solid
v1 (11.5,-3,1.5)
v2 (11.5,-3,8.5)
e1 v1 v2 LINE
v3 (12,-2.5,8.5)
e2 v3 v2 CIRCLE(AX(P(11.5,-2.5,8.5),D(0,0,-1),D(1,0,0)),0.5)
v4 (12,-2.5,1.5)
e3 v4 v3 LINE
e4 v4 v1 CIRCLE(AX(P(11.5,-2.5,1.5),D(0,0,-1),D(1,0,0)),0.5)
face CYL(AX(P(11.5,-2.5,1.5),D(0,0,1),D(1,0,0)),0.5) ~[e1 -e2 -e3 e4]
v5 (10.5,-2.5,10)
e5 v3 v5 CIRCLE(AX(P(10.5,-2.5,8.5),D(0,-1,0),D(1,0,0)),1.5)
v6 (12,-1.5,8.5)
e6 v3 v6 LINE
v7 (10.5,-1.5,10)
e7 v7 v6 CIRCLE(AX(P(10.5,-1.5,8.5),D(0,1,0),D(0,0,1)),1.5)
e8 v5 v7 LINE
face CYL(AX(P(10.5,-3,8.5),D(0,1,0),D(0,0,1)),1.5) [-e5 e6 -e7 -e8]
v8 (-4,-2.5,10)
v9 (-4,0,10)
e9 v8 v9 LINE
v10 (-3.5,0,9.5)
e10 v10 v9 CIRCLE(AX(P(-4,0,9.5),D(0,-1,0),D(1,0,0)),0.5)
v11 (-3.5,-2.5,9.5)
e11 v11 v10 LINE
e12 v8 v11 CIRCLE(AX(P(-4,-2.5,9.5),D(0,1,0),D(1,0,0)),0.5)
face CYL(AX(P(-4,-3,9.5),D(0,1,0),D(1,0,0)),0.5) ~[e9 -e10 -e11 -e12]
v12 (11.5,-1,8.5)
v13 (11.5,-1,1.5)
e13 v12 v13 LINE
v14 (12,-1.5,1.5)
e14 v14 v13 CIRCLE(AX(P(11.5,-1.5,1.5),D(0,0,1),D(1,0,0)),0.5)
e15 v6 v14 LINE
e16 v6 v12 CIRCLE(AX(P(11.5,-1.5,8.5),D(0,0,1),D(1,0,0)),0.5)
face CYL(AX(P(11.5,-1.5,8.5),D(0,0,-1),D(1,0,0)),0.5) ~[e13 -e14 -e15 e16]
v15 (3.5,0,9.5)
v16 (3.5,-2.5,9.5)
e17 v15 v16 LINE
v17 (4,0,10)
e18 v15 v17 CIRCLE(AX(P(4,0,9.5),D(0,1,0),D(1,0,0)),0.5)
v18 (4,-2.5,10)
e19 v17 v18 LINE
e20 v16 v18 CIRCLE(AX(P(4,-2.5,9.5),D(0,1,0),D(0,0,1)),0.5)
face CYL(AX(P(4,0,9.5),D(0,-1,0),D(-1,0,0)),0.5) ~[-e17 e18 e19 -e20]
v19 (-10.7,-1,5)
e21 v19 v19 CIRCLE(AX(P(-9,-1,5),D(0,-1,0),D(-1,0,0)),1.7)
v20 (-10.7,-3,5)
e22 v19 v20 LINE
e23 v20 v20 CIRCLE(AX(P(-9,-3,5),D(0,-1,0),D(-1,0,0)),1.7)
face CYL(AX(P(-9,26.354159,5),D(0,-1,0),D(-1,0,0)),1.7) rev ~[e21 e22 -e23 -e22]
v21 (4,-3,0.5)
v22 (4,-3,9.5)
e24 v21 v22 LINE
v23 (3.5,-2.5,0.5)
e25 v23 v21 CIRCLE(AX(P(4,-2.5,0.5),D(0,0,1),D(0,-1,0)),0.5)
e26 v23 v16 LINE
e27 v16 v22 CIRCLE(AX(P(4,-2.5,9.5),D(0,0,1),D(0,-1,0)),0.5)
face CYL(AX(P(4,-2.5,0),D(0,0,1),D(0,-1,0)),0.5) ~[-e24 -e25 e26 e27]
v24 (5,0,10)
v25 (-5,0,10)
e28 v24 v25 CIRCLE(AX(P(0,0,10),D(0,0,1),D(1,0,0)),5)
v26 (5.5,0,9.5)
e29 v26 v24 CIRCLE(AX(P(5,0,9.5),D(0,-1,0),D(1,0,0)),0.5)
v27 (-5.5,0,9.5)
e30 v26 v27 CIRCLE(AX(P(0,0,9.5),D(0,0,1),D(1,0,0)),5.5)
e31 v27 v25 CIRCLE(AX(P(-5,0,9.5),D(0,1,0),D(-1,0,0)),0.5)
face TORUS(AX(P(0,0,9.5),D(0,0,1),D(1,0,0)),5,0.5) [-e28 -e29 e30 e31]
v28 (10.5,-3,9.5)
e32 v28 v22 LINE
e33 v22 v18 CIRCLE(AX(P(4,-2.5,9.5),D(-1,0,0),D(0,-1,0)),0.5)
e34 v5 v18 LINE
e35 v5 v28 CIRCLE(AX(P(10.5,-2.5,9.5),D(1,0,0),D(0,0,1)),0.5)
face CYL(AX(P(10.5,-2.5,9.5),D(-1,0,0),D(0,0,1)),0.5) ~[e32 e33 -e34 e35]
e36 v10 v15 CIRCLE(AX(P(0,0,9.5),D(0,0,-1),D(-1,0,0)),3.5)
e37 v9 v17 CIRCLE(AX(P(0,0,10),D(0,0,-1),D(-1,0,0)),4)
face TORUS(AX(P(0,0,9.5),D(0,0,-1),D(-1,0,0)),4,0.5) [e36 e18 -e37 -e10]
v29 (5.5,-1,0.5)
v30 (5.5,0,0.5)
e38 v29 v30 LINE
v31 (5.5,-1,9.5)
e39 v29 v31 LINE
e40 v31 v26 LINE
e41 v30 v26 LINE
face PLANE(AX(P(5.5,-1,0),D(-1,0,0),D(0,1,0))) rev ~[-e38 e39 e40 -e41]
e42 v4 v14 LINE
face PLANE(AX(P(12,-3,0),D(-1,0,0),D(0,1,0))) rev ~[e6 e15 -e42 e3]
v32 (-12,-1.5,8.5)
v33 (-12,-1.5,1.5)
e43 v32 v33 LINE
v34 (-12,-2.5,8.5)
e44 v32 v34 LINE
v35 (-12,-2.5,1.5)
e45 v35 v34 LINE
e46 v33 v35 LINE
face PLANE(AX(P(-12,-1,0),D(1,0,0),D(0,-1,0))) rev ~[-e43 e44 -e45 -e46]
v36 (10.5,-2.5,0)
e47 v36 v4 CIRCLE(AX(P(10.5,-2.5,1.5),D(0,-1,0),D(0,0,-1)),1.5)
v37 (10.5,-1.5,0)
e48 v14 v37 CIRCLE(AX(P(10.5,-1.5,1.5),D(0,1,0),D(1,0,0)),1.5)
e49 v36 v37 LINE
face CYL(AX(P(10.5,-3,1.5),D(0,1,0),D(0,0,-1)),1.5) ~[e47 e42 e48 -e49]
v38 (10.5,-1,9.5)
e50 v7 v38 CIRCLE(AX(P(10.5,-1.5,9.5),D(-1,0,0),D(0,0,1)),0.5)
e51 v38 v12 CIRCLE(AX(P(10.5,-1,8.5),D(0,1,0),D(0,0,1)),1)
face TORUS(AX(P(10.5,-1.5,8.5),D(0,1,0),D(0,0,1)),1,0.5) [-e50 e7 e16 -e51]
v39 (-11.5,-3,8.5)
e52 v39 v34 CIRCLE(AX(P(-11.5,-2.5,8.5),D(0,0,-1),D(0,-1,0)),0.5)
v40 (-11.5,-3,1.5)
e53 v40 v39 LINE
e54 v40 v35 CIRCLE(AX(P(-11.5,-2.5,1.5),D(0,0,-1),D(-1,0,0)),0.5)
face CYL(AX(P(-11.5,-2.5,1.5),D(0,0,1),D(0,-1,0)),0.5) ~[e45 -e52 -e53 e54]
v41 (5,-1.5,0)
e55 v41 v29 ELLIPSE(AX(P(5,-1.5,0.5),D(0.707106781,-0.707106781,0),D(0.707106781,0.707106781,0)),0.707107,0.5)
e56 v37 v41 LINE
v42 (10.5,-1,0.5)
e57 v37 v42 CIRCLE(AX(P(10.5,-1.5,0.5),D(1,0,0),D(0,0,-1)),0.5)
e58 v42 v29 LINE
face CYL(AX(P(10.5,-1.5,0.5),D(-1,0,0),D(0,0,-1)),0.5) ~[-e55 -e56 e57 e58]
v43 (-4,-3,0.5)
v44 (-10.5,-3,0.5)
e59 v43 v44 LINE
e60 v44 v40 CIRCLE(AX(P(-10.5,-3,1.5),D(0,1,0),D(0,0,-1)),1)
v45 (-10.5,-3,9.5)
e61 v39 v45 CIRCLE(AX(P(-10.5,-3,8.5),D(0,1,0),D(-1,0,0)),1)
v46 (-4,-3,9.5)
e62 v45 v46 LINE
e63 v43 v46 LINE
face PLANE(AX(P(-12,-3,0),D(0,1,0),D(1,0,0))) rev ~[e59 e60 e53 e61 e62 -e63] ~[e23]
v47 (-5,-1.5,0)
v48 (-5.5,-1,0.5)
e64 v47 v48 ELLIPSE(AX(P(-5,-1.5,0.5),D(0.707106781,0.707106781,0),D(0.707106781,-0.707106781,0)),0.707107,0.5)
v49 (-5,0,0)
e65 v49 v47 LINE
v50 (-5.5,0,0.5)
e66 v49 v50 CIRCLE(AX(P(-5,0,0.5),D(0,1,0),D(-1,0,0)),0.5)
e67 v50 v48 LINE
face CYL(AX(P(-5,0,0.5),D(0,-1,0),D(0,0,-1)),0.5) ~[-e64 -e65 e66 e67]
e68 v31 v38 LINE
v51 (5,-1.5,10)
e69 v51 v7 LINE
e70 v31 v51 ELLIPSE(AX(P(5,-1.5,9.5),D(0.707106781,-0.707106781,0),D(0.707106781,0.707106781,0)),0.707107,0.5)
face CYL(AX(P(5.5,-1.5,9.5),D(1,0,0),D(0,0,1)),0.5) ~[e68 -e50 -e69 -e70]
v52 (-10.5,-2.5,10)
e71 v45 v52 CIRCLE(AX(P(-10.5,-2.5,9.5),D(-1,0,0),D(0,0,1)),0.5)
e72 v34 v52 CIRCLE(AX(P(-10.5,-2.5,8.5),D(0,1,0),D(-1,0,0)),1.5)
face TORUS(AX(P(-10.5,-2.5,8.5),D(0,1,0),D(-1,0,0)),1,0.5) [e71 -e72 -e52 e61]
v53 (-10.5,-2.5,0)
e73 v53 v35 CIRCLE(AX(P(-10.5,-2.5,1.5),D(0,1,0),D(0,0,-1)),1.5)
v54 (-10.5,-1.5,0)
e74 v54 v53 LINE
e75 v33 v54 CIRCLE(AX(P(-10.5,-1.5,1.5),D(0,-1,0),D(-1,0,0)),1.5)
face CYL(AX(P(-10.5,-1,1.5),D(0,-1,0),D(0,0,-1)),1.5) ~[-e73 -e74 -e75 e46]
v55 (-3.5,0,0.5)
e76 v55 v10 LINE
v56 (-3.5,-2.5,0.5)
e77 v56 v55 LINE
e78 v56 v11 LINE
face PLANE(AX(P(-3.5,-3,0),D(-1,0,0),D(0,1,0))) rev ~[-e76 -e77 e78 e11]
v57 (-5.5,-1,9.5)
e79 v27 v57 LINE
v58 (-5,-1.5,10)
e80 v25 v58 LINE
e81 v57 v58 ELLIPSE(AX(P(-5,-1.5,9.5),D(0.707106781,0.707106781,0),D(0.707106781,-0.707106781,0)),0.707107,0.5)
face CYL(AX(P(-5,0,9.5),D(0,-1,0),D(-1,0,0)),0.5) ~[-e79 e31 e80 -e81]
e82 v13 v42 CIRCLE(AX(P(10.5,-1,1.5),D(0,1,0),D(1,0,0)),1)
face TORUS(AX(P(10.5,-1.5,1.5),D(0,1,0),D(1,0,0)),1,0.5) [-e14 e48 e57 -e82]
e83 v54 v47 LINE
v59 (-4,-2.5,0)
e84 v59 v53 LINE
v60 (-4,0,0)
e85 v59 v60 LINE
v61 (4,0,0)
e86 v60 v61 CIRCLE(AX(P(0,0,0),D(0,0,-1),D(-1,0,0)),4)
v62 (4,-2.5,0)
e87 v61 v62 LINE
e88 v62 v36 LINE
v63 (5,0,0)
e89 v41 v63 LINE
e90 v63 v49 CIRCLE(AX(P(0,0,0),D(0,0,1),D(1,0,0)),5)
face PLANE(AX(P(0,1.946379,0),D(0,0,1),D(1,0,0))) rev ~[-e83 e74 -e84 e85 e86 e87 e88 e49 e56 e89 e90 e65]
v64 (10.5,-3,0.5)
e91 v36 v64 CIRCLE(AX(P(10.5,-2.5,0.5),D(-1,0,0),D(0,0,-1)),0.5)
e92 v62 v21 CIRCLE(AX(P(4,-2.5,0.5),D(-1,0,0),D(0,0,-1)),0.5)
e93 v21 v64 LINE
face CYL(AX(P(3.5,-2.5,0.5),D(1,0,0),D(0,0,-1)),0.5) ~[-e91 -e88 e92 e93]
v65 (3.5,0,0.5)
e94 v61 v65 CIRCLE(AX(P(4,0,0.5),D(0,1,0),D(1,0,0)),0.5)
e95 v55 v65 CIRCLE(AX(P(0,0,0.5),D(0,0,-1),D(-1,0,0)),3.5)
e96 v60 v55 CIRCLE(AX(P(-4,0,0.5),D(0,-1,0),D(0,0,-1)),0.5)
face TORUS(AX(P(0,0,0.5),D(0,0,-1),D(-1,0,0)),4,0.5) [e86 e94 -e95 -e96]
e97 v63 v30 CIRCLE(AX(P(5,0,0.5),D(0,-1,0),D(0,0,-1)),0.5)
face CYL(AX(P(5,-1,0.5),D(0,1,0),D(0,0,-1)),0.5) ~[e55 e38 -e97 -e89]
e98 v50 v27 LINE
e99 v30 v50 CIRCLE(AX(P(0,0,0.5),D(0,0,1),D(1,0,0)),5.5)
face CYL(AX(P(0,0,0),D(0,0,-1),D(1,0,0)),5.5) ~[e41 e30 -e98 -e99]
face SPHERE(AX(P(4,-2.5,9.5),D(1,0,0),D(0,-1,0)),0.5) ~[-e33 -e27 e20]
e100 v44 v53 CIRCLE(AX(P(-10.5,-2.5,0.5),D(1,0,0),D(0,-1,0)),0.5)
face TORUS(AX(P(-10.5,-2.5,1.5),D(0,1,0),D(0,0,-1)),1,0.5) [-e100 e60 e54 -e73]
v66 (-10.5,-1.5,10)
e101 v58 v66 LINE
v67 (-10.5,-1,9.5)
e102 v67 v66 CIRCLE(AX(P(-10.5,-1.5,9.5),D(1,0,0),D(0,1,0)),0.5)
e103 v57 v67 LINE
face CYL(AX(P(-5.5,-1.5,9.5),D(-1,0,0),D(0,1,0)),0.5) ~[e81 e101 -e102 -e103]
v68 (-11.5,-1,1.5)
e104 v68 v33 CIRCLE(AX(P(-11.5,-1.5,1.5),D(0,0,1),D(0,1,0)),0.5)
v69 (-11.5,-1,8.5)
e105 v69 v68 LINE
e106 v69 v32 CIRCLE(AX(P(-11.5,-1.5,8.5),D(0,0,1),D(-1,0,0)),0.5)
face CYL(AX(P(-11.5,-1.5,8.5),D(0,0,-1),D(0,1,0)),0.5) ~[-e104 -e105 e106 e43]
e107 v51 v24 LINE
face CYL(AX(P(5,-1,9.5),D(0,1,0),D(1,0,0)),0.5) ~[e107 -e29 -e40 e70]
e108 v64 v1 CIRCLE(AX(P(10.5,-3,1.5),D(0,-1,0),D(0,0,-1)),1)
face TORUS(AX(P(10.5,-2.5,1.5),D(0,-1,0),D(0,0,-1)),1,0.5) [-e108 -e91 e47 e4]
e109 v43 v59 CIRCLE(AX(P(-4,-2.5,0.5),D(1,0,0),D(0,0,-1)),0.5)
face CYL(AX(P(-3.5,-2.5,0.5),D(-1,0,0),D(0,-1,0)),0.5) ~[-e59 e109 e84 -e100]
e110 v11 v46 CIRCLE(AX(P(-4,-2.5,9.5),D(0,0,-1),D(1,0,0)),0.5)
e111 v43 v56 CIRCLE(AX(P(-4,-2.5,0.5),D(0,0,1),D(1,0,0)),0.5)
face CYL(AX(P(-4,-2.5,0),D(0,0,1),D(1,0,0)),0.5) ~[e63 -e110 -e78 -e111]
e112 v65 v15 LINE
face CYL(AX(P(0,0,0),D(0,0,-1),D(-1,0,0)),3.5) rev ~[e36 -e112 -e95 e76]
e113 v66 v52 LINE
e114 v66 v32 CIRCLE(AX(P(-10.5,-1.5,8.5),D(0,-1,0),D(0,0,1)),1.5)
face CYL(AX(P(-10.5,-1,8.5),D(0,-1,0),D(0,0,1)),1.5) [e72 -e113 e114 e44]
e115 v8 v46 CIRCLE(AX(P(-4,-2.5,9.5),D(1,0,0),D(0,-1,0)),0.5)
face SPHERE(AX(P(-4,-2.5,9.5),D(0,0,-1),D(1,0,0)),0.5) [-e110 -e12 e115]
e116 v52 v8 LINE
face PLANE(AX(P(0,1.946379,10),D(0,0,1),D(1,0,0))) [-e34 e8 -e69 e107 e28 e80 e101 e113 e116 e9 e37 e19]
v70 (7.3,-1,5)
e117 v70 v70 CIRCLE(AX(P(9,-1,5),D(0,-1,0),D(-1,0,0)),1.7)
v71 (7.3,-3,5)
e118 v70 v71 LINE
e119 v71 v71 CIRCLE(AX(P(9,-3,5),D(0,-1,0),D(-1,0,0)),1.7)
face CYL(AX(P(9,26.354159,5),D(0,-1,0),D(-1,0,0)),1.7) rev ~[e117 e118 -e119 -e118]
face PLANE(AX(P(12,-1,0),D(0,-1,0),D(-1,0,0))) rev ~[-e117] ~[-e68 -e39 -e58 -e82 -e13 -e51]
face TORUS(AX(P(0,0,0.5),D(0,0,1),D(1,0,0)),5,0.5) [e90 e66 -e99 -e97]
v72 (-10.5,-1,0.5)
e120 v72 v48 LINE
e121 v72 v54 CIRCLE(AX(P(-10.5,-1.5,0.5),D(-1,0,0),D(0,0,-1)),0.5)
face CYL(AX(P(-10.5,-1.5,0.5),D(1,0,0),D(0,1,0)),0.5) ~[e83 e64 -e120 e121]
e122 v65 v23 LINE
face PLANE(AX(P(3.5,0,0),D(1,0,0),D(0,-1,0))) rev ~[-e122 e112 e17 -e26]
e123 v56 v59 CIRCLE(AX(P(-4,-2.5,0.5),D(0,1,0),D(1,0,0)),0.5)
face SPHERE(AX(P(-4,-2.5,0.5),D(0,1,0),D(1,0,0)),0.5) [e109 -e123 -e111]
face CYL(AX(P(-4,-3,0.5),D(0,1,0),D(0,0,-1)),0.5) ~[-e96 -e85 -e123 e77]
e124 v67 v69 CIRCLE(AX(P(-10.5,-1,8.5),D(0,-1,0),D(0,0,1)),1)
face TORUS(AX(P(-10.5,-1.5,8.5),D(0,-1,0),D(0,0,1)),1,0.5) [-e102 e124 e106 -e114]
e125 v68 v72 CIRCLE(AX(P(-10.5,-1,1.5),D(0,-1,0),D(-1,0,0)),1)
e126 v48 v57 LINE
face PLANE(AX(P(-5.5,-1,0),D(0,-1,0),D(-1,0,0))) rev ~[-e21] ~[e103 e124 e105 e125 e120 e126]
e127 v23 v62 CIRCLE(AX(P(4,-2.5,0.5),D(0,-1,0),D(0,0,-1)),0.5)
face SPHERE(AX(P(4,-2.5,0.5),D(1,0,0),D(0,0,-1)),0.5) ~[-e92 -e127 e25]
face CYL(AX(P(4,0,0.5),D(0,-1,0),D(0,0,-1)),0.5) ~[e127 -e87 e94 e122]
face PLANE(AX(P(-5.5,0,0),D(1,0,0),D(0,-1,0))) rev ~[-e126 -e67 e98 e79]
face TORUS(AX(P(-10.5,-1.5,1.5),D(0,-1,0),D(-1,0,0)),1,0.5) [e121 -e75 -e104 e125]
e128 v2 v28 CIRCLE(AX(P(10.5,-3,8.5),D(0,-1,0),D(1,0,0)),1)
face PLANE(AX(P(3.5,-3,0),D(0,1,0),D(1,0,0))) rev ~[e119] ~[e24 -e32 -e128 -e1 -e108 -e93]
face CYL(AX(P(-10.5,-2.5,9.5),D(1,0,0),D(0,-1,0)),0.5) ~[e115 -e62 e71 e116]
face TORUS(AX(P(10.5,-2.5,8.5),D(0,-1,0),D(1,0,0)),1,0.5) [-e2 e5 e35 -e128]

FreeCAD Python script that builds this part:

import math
import FreeCAD as App
import Part
import Sketcher
from FreeCAD import Vector


def edges_at(feature, points):
    """Names of the edges that pass closest to the given points."""
    edges = feature.Shape.Edges
    near = lambda p: min(range(len(edges)), key=lambda i: edges[i].distToShape(Part.Vertex(*p))[0])
    return sorted({f"Edge{near(p) + 1}" for p in points})

doc = App.newDocument("Part")
body = doc.addObject("PartDesign::Body", "Body")

# Sketch on XY plane
sketch1 = doc.addObject("Sketcher::SketchObject", "Sketch")
body.addObject(sketch1)
sketch1.AttachmentSupport = (doc.XY_Plane, [""])
sketch1.MapMode = "FlatFace"
sketch1.addGeometry([
    Part.ArcOfCircle(Part.Circle(Vector(0, 0, 0), Vector(0, 0, 1), 3.5), math.radians(0), math.radians(180)),  # 0
    Part.LineSegment(Vector(3.5, 0, 0), Vector(3.5, -3, 0)),  # 1
    Part.LineSegment(Vector(3.5, -3, 0), Vector(12, -3, 0)),  # 2
    Part.LineSegment(Vector(12, -3, 0), Vector(12, -1, 0)),  # 3
    Part.LineSegment(Vector(12, -1, 0), Vector(5.5, -1, 0)),  # 4
    Part.LineSegment(Vector(5.5, -1, 0), Vector(5.5, 0, 0)),  # 5
    Part.ArcOfCircle(Part.Circle(Vector(0, 0, 0), Vector(0, 0, 1), 5.5), math.radians(0), math.radians(180)),  # 6
    Part.LineSegment(Vector(-5.5, 0, 0), Vector(-5.5, -1, 0)),  # 7
    Part.LineSegment(Vector(-5.5, -1, 0), Vector(-12, -1, 0)),  # 8
    Part.LineSegment(Vector(-12, -1, 0), Vector(-12, -3, 0)),  # 9
    Part.LineSegment(Vector(-12, -3, 0), Vector(-3.5, -3, 0)),  # 10
    Part.LineSegment(Vector(-3.5, -3, 0), Vector(-3.5, 0, 0)),  # 11
], False)
sketch1.addConstraint([
    Sketcher.Constraint("Tangent", 0, 1, 1, 1),
    Sketcher.Constraint("Coincident", 1, 2, 2, 1),
    Sketcher.Constraint("Coincident", 2, 2, 3, 1),
    Sketcher.Constraint("Coincident", 3, 2, 4, 1),
    Sketcher.Constraint("Coincident", 4, 2, 5, 1),
    Sketcher.Constraint("Tangent", 5, 2, 6, 1),
    Sketcher.Constraint("Tangent", 6, 2, 7, 1),
    Sketcher.Constraint("Coincident", 7, 2, 8, 1),
    Sketcher.Constraint("Coincident", 8, 2, 9, 1),
    Sketcher.Constraint("Coincident", 9, 2, 10, 1),
    Sketcher.Constraint("Coincident", 10, 2, 11, 1),
    Sketcher.Constraint("Tangent", 11, 2, 0, 2),
    Sketcher.Constraint("Vertical", 1),
    Sketcher.Constraint("Horizontal", 2),
    Sketcher.Constraint("Vertical", 3),
    Sketcher.Constraint("Horizontal", 4),
    Sketcher.Constraint("Vertical", 5),
    Sketcher.Constraint("Vertical", 7),
    Sketcher.Constraint("Horizontal", 8),
    Sketcher.Constraint("Vertical", 9),
    Sketcher.Constraint("Horizontal", 10),
    Sketcher.Constraint("Vertical", 11),
    Sketcher.Constraint("Coincident", 0, 3, -1, 1),
    Sketcher.Constraint("Coincident", 6, 3, -1, 1),
    Sketcher.Constraint("Symmetric", 3, 2, 8, 2, -2),
    Sketcher.Constraint("Horizontal", 2, 2, 9, 2),
    Sketcher.Constraint("Radius", 0, 3.5),
    Sketcher.Constraint("Radius", 6, 5.5),
    Sketcher.Constraint("DistanceY", 1, 2, 1, 1, 3.0),
    Sketcher.Constraint("DistanceY", 3, 1, 3, 2, 2.0),
    Sketcher.Constraint("DistanceX", 2, 1, 2, 2, 8.5),
])
pad1 = doc.addObject("PartDesign::Pad", "Pad")
body.addObject(pad1)
pad1.Profile = sketch1
pad1.Length = 10

# Sketch on XZ plane
sketch2 = doc.addObject("Sketcher::SketchObject", "Sketch001")
body.addObject(sketch2)
sketch2.AttachmentSupport = (doc.XZ_Plane, [""])
sketch2.MapMode = "FlatFace"
sketch2.AttachmentOffset = App.Placement(Vector(0, 0, 1), App.Rotation())
sketch2.addGeometry([
    Part.Circle(Vector(9, 5, 0), Vector(0, 0, 1), 1.7),
    Part.Circle(Vector(-9, 5, 0), Vector(0, 0, 1), 1.7),
], False)
sketch2.addConstraint([
    Sketcher.Constraint("Equal", 0, 1),
    Sketcher.Constraint("Symmetric", 0, 3, 1, 3, -2),
    Sketcher.Constraint("Diameter", 0, 3.4),
    Sketcher.Constraint("DistanceX", -1, 1, 0, 3, 9.0),
    Sketcher.Constraint("DistanceY", -1, 1, 0, 3, 5.0),
])
doc.recompute()
hole = doc.addObject("PartDesign::Hole", "Hole")
body.addObject(hole)
hole.Profile = sketch2
hole.ThreadType = "None"
hole.Diameter = 3.4
hole.DepthType = "ThroughAll"
hole.Reversed = True
doc.recompute()

fillet = doc.addObject("PartDesign::Fillet", "Fillet")
body.addObject(fillet)
fillet.Base = (hole, edges_at(hole, [
    (12, -2, 0),
    (-12, -2, 0),
    (-12, -2, 10),
    (12, -2, 10),
]))
fillet.Radius = 1.5
doc.recompute()

fillet2 = doc.addObject("PartDesign::Fillet", "Fillet001")
body.addObject(fillet2)
fillet2.Base = (fillet, edges_at(fillet, [
    (5.5, -0.5, 10),
    (7, -3, 0),
    (0, 5.5, 10),
    (3.5, -1.5, 0),
    (0, 3.5, 0),
    (-3.5, -1.5, 0),
    (-5.5, -0.5, 0),
    (0, 5.5, 0),
    (5.5, -0.5, 0),
    (-5.5, -0.5, 10),
    (8, -1, 0),
    (3.5, -3, 5),
    (-3.5, -3, 5),
    (-3.5, -1.5, 10),
    (0, 3.5, 10),
    (8, -1, 10),
    (3.5, -1.5, 10),
    (12, -1, 5),
    (12, -3, 5),
    (11.561, -3, 0.439),
    (11.561, -3, 9.561),
    (7, -3, 10),
    (-8, -1, 10),
    (-7, -3, 10),
    (11.561, -1, 0.439),
    (11.561, -1, 9.561),
    (-7, -3, 0),
    (-8, -1, 0),
    (-12, -3, 5),
    (-12, -1, 5),
    (-11.561, -3, 9.561),
    (-11.561, -3, 0.439),
    (-11.561, -1, 9.561),
    (-11.561, -1, 0.439),
]))
fillet2.Radius = 0.5

doc.recompute()
